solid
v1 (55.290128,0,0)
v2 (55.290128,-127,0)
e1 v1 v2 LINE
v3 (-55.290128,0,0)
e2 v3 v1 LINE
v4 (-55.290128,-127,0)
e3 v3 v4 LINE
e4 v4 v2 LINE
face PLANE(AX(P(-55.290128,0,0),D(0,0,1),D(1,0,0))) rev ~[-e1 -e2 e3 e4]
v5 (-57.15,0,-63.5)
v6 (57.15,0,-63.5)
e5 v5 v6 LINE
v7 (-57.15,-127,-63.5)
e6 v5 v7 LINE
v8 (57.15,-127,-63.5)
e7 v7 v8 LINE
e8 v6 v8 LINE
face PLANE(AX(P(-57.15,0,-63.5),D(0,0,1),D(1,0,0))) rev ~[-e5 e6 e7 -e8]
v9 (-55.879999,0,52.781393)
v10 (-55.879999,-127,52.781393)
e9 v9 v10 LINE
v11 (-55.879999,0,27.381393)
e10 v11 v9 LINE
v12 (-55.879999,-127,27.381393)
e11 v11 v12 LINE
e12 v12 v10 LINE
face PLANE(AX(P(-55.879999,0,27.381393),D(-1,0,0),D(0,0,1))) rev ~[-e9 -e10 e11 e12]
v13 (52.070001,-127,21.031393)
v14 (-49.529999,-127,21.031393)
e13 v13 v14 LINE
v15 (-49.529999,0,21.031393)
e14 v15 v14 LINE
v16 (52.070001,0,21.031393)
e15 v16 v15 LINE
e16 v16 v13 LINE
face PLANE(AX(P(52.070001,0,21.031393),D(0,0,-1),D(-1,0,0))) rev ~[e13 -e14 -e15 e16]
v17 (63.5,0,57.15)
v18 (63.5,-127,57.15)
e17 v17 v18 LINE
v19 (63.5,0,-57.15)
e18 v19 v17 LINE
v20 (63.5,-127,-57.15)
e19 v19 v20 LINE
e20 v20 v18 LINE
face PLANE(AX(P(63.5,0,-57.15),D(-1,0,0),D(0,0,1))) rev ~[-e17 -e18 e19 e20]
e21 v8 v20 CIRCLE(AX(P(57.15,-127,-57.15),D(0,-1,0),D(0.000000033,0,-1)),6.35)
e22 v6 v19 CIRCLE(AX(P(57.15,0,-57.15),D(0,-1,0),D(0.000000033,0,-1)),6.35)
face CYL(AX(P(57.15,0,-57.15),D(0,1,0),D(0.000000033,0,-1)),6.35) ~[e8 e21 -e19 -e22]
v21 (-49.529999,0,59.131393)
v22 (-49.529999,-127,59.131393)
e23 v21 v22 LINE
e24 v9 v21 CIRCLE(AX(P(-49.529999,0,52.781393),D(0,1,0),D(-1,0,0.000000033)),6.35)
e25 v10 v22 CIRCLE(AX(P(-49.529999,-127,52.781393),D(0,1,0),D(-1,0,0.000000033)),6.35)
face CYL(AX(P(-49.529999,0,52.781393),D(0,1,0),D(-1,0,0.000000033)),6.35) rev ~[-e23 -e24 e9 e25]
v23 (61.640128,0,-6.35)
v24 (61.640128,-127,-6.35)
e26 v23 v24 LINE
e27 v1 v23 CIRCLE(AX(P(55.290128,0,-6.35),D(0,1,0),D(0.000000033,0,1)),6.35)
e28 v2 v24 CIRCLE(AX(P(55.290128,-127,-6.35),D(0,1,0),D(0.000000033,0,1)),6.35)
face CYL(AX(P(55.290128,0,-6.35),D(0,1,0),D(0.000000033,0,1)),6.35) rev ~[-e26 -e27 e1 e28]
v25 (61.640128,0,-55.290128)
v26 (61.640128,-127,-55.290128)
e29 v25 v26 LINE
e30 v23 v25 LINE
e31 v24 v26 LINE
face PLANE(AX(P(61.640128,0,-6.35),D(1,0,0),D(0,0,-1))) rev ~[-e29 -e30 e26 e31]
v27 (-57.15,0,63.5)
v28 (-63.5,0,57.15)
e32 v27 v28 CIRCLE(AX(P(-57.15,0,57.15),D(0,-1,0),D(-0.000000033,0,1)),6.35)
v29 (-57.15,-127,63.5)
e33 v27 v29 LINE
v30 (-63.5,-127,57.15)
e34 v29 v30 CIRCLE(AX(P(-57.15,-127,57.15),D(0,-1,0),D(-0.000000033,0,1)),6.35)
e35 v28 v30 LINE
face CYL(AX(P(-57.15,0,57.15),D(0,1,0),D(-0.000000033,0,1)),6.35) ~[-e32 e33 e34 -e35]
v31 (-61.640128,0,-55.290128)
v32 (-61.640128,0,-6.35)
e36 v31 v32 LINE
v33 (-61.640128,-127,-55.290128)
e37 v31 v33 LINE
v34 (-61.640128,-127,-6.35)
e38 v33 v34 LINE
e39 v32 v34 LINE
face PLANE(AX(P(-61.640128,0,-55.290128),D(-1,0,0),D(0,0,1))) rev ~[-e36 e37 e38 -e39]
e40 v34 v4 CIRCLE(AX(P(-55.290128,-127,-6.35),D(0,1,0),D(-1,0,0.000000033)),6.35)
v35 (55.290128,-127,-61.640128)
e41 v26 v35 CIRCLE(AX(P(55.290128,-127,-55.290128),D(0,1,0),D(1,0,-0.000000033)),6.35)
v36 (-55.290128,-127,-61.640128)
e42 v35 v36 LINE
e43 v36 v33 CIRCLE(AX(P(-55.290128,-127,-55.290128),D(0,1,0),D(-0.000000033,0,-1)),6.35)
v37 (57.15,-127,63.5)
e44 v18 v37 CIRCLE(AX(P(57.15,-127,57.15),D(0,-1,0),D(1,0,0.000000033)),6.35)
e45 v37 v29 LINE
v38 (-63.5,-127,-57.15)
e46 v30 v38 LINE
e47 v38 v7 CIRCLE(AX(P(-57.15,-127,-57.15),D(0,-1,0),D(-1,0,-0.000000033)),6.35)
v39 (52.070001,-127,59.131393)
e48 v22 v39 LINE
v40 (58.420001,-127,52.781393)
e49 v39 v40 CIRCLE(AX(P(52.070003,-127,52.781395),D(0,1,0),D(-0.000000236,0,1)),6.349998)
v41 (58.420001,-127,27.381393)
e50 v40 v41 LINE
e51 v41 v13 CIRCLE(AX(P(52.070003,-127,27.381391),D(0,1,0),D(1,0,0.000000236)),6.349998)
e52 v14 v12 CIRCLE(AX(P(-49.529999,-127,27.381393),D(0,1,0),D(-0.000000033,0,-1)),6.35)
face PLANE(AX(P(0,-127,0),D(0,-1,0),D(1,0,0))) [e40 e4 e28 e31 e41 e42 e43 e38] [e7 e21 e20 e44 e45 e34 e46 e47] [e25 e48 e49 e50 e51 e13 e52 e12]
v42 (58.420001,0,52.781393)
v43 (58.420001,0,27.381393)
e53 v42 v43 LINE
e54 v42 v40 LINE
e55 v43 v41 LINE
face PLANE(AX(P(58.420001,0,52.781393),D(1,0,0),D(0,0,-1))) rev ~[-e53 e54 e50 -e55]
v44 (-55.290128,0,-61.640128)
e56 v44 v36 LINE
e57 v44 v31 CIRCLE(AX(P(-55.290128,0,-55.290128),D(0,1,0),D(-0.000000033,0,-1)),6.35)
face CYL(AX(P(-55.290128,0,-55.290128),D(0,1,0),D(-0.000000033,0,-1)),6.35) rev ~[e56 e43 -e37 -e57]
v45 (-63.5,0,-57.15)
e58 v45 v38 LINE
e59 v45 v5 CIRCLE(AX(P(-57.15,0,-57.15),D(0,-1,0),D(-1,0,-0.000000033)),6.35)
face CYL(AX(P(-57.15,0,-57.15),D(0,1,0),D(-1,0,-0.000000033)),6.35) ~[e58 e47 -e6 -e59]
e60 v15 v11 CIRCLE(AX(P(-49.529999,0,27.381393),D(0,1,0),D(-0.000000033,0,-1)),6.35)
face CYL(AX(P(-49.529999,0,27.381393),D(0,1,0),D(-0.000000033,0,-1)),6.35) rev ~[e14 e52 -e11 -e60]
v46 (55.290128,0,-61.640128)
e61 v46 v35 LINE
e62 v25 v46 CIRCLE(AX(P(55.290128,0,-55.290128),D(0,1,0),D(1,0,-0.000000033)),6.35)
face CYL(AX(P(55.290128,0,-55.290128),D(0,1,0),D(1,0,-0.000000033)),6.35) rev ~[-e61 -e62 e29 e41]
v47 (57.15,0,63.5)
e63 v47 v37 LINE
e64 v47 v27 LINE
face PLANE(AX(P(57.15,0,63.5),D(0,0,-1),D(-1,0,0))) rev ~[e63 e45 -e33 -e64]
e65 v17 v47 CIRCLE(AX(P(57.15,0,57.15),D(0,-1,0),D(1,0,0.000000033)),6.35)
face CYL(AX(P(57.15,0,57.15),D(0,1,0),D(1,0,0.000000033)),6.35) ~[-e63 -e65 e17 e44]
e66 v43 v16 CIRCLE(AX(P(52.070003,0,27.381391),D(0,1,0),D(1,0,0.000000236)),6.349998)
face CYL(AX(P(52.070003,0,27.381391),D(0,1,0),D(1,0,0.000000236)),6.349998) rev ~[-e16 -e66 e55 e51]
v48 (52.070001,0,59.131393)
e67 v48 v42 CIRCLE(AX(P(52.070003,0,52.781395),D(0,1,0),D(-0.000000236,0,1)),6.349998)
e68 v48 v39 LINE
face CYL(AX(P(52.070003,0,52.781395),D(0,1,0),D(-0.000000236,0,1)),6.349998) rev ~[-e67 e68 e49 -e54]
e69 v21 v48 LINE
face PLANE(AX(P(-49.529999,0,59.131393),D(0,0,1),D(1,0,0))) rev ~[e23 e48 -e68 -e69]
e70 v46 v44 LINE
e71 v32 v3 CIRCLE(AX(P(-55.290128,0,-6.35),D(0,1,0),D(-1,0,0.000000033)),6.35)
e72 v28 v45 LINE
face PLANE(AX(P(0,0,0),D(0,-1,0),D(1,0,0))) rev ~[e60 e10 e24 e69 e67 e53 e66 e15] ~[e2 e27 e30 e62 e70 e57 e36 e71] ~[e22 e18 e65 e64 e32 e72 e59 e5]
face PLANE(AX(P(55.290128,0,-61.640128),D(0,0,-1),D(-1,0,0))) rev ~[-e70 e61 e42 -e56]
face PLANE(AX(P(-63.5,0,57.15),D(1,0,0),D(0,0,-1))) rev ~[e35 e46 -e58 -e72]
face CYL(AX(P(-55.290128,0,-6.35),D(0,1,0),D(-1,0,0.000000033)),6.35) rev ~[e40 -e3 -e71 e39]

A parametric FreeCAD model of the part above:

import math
import FreeCAD as App
import Part
import Sketcher
Q = App.Units.Quantity

doc = App.newDocument("Part")
body = doc.addObject("PartDesign::Body", "Body")

sketch1 = doc.addObject("Sketcher::SketchObject", "Sketch")
body.addObject(sketch1)
sketch1.AttachmentSupport = (doc.XZ_Plane, [""])
sketch1.MapMode = "FlatFace"
sketch1.addGeometry(Part.ArcOfCircle(Part.Circle(App.Vector(57, 57, 0), App.Vector(0, 0, 1), 6), math.radians(0), math.radians(90)), False)
sketch1.addGeometry(Part.LineSegment(App.Vector(57, 64, 0), App.Vector(-57, 64, 0)), False)
sketch1.addGeometry(Part.ArcOfCircle(Part.Circle(App.Vector(-57, 57, 0), App.Vector(0, 0, 1), 6), math.radians(90), math.radians(180)), False)
sketch1.addGeometry(Part.LineSegment(App.Vector(-64, 57, 0), App.Vector(-64, -57, 0)), False)
sketch1.addGeometry(Part.ArcOfCircle(Part.Circle(App.Vector(-57, -57, 0), App.Vector(0, 0, 1), 6), math.radians(-180), math.radians(-90)), False)
sketch1.addGeometry(Part.LineSegment(App.Vector(-57, -64, 0), App.Vector(57, -64, 0)), False)
sketch1.addGeometry(Part.ArcOfCircle(Part.Circle(App.Vector(57, -57, 0), App.Vector(0, 0, 1), 6), math.radians(-90), math.radians(0)), False)
sketch1.addGeometry(Part.LineSegment(App.Vector(64, -57, 0), App.Vector(64, 57, 0)), False)
sketch1.addGeometry(Part.ArcOfCircle(Part.Circle(App.Vector(55, -55, 0), App.Vector(0, 0, 1), 6), math.radians(-90), math.radians(0)), False)
sketch1.addGeometry(Part.LineSegment(App.Vector(55, -62, 0), App.Vector(-55, -62, 0)), False)
sketch1.addGeometry(Part.ArcOfCircle(Part.Circle(App.Vector(-55, -55, 0), App.Vector(0, 0, 1), 6), math.radians(-180), math.radians(-90)), False)
sketch1.addGeometry(Part.LineSegment(App.Vector(-62, -55, 0), App.Vector(-62, -6, 0)), False)
sketch1.addGeometry(Part.ArcOfCircle(Part.Circle(App.Vector(-55, -6, 0), App.Vector(0, 0, 1), 6), math.radians(90), math.radians(180)), False)
sketch1.addGeometry(Part.LineSegment(App.Vector(-55, 0, 0), App.Vector(55, 0, 0)), False)
sketch1.addGeometry(Part.ArcOfCircle(Part.Circle(App.Vector(55, -6, 0), App.Vector(0, 0, 1), 6), math.radians(0), math.radians(90)), False)
sketch1.addGeometry(Part.LineSegment(App.Vector(62, -6, 0), App.Vector(62, -55, 0)), False)
sketch1.addGeometry(Part.LineSegment(App.Vector(-56, 27, 0), App.Vector(-56, 53, 0)), False)
sketch1.addGeometry(Part.ArcOfCircle(Part.Circle(App.Vector(-50, 53, 0), App.Vector(0, 0, 1), 6), math.radians(90), math.radians(180)), False)
sketch1.addGeometry(Part.LineSegment(App.Vector(-50, 59, 0), App.Vector(52, 59, 0)), False)
sketch1.addGeometry(Part.ArcOfCircle(Part.Circle(App.Vector(52, 53, 0), App.Vector(0, 0, 1), 6), math.radians(0), math.radians(90)), False)
sketch1.addGeometry(Part.LineSegment(App.Vector(58, 53, 0), App.Vector(58, 27, 0)), False)
sketch1.addGeometry(Part.ArcOfCircle(Part.Circle(App.Vector(52, 27, 0), App.Vector(0, 0, 1), 6), math.radians(-90), math.radians(0)), False)
sketch1.addGeometry(Part.LineSegment(App.Vector(52, 21, 0), App.Vector(-50, 21, 0)), False)
sketch1.addGeometry(Part.ArcOfCircle(Part.Circle(App.Vector(-50, 27, 0), App.Vector(0, 0, 1), 6), math.radians(-180), math.radians(-90)), False)
sketch1.addConstraint(Sketcher.Constraint("Tangent", 0, 2, 1, 1))
sketch1.addConstraint(Sketcher.Constraint("Tangent", 1, 2, 2, 1))
sketch1.addConstraint(Sketcher.Constraint("Tangent", 2, 2, 3, 1))
sketch1.addConstraint(Sketcher.Constraint("Tangent", 3, 2, 4, 1))
sketch1.addConstraint(Sketcher.Constraint("Tangent", 4, 2, 5, 1))
sketch1.addConstraint(Sketcher.Constraint("Tangent", 5, 2, 6, 1))
sketch1.addConstraint(Sketcher.Constraint("Tangent", 6, 2, 7, 1))
sketch1.addConstraint(Sketcher.Constraint("Tangent", 7, 2, 0, 1))
sketch1.addConstraint(Sketcher.Constraint("Tangent", 8, 1, 9, 1))
sketch1.addConstraint(Sketcher.Constraint("Tangent", 9, 2, 10, 2))
sketch1.addConstraint(Sketcher.Constraint("Tangent", 10, 1, 11, 1))
sketch1.addConstraint(Sketcher.Constraint("Tangent", 11, 2, 12, 2))
sketch1.addConstraint(Sketcher.Constraint("Tangent", 12, 1, 13, 1))
sketch1.addConstraint(Sketcher.Constraint("Tangent", 13, 2, 14, 2))
sketch1.addConstraint(Sketcher.Constraint("Tangent", 14, 1, 15, 1))
sketch1.addConstraint(Sketcher.Constraint("Tangent", 15, 2, 8, 2))
sketch1.addConstraint(Sketcher.Constraint("Tangent", 16, 2, 17, 2))
sketch1.addConstraint(Sketcher.Constraint("Tangent", 17, 1, 18, 1))
sketch1.addConstraint(Sketcher.Constraint("Tangent", 18, 2, 19, 2))
sketch1.addConstraint(Sketcher.Constraint("Tangent", 19, 1, 20, 1))
sketch1.addConstraint(Sketcher.Constraint("Tangent", 20, 2, 21, 2))
sketch1.addConstraint(Sketcher.Constraint("Tangent", 21, 1, 22, 1))
sketch1.addConstraint(Sketcher.Constraint("Tangent", 22, 2, 23, 2))
sketch1.addConstraint(Sketcher.Constraint("Tangent", 23, 1, 16, 1))
sketch1.addConstraint(Sketcher.Constraint("Horizontal", 1))
sketch1.addConstraint(Sketcher.Constraint("Vertical", 3))
sketch1.addConstraint(Sketcher.Constraint("Horizontal", 5))
sketch1.addConstraint(Sketcher.Constraint("Vertical", 7))
sketch1.addConstraint(Sketcher.Constraint("Horizontal", 9))
sketch1.addConstraint(Sketcher.Constraint("Vertical", 11))
sketch1.addConstraint(Sketcher.Constraint("Horizontal", 13))
sketch1.addConstraint(Sketcher.Constraint("Vertical", 15))
sketch1.addConstraint(Sketcher.Constraint("Vertical", 16))
sketch1.addConstraint(Sketcher.Constraint("Horizontal", 18))
sketch1.addConstraint(Sketcher.Constraint("Vertical", 20))
sketch1.addConstraint(Sketcher.Constraint("Horizontal", 22))
sketch1.addConstraint(Sketcher.Constraint("Equal", 0, 2))
sketch1.addConstraint(Sketcher.Constraint("Equal", 2, 4))
sketch1.addConstraint(Sketcher.Constraint("Equal", 4, 6))
sketch1.addConstraint(Sketcher.Constraint("Equal", 6, 8))
sketch1.addConstraint(Sketcher.Constraint("Equal", 8, 10))
sketch1.addConstraint(Sketcher.Constraint("Equal", 10, 12))
sketch1.addConstraint(Sketcher.Constraint("Equal", 12, 14))
sketch1.addConstraint(Sketcher.Constraint("Equal", 14, 17))
sketch1.addConstraint(Sketcher.Constraint("Equal", 17, 19))
sketch1.addConstraint(Sketcher.Constraint("Equal", 19, 21))
sketch1.addConstraint(Sketcher.Constraint("Equal", 21, 23))
sketch1.addConstraint(Sketcher.Constraint("Symmetric", 0, 3, 4, 3, -1, 1))
sketch1.addConstraint(Sketcher.Constraint("Symmetric", 12, 1, 13, 2, -1, 1))
sketch1.addConstraint(Sketcher.Constraint("Equal", 5, 3))
sketch1.addConstraint(Sketcher.Constraint("DistanceX", 18, 1, 18, 2, Q("4 in")))
sketch1.addConstraint(Sketcher.Constraint("DistanceY", 16, 1, 16, 2, Q("1 in")))
sketch1.addConstraint(Sketcher.Constraint("Radius", 0, Q("0.25 in")))
sketch1.addConstraint(Sketcher.Constraint("DistanceX", 1, 2, 1, 1, Q("4.5 in")))
sketch1.addConstraint(Sketcher.Constraint("DistanceX", 16, 2, -1, 1, Q("2.2 in")))
sketch1.addConstraint(Sketcher.Constraint("DistanceX", 9, 2, 9, 1, 110.580256))
sketch1.addConstraint(Sketcher.Constraint("DistanceY", 11, 1, 11, 2, 48.940128))
sketch1.addConstraint(Sketcher.Constraint("DistanceY", -1, 1, 21, 3, 27.381391))
pad1 = doc.addObject("PartDesign::Pad", "Pad")
body.addObject(pad1)
pad1.Profile = sketch1
pad1.Length = Q("5 in")

doc.recompute()
